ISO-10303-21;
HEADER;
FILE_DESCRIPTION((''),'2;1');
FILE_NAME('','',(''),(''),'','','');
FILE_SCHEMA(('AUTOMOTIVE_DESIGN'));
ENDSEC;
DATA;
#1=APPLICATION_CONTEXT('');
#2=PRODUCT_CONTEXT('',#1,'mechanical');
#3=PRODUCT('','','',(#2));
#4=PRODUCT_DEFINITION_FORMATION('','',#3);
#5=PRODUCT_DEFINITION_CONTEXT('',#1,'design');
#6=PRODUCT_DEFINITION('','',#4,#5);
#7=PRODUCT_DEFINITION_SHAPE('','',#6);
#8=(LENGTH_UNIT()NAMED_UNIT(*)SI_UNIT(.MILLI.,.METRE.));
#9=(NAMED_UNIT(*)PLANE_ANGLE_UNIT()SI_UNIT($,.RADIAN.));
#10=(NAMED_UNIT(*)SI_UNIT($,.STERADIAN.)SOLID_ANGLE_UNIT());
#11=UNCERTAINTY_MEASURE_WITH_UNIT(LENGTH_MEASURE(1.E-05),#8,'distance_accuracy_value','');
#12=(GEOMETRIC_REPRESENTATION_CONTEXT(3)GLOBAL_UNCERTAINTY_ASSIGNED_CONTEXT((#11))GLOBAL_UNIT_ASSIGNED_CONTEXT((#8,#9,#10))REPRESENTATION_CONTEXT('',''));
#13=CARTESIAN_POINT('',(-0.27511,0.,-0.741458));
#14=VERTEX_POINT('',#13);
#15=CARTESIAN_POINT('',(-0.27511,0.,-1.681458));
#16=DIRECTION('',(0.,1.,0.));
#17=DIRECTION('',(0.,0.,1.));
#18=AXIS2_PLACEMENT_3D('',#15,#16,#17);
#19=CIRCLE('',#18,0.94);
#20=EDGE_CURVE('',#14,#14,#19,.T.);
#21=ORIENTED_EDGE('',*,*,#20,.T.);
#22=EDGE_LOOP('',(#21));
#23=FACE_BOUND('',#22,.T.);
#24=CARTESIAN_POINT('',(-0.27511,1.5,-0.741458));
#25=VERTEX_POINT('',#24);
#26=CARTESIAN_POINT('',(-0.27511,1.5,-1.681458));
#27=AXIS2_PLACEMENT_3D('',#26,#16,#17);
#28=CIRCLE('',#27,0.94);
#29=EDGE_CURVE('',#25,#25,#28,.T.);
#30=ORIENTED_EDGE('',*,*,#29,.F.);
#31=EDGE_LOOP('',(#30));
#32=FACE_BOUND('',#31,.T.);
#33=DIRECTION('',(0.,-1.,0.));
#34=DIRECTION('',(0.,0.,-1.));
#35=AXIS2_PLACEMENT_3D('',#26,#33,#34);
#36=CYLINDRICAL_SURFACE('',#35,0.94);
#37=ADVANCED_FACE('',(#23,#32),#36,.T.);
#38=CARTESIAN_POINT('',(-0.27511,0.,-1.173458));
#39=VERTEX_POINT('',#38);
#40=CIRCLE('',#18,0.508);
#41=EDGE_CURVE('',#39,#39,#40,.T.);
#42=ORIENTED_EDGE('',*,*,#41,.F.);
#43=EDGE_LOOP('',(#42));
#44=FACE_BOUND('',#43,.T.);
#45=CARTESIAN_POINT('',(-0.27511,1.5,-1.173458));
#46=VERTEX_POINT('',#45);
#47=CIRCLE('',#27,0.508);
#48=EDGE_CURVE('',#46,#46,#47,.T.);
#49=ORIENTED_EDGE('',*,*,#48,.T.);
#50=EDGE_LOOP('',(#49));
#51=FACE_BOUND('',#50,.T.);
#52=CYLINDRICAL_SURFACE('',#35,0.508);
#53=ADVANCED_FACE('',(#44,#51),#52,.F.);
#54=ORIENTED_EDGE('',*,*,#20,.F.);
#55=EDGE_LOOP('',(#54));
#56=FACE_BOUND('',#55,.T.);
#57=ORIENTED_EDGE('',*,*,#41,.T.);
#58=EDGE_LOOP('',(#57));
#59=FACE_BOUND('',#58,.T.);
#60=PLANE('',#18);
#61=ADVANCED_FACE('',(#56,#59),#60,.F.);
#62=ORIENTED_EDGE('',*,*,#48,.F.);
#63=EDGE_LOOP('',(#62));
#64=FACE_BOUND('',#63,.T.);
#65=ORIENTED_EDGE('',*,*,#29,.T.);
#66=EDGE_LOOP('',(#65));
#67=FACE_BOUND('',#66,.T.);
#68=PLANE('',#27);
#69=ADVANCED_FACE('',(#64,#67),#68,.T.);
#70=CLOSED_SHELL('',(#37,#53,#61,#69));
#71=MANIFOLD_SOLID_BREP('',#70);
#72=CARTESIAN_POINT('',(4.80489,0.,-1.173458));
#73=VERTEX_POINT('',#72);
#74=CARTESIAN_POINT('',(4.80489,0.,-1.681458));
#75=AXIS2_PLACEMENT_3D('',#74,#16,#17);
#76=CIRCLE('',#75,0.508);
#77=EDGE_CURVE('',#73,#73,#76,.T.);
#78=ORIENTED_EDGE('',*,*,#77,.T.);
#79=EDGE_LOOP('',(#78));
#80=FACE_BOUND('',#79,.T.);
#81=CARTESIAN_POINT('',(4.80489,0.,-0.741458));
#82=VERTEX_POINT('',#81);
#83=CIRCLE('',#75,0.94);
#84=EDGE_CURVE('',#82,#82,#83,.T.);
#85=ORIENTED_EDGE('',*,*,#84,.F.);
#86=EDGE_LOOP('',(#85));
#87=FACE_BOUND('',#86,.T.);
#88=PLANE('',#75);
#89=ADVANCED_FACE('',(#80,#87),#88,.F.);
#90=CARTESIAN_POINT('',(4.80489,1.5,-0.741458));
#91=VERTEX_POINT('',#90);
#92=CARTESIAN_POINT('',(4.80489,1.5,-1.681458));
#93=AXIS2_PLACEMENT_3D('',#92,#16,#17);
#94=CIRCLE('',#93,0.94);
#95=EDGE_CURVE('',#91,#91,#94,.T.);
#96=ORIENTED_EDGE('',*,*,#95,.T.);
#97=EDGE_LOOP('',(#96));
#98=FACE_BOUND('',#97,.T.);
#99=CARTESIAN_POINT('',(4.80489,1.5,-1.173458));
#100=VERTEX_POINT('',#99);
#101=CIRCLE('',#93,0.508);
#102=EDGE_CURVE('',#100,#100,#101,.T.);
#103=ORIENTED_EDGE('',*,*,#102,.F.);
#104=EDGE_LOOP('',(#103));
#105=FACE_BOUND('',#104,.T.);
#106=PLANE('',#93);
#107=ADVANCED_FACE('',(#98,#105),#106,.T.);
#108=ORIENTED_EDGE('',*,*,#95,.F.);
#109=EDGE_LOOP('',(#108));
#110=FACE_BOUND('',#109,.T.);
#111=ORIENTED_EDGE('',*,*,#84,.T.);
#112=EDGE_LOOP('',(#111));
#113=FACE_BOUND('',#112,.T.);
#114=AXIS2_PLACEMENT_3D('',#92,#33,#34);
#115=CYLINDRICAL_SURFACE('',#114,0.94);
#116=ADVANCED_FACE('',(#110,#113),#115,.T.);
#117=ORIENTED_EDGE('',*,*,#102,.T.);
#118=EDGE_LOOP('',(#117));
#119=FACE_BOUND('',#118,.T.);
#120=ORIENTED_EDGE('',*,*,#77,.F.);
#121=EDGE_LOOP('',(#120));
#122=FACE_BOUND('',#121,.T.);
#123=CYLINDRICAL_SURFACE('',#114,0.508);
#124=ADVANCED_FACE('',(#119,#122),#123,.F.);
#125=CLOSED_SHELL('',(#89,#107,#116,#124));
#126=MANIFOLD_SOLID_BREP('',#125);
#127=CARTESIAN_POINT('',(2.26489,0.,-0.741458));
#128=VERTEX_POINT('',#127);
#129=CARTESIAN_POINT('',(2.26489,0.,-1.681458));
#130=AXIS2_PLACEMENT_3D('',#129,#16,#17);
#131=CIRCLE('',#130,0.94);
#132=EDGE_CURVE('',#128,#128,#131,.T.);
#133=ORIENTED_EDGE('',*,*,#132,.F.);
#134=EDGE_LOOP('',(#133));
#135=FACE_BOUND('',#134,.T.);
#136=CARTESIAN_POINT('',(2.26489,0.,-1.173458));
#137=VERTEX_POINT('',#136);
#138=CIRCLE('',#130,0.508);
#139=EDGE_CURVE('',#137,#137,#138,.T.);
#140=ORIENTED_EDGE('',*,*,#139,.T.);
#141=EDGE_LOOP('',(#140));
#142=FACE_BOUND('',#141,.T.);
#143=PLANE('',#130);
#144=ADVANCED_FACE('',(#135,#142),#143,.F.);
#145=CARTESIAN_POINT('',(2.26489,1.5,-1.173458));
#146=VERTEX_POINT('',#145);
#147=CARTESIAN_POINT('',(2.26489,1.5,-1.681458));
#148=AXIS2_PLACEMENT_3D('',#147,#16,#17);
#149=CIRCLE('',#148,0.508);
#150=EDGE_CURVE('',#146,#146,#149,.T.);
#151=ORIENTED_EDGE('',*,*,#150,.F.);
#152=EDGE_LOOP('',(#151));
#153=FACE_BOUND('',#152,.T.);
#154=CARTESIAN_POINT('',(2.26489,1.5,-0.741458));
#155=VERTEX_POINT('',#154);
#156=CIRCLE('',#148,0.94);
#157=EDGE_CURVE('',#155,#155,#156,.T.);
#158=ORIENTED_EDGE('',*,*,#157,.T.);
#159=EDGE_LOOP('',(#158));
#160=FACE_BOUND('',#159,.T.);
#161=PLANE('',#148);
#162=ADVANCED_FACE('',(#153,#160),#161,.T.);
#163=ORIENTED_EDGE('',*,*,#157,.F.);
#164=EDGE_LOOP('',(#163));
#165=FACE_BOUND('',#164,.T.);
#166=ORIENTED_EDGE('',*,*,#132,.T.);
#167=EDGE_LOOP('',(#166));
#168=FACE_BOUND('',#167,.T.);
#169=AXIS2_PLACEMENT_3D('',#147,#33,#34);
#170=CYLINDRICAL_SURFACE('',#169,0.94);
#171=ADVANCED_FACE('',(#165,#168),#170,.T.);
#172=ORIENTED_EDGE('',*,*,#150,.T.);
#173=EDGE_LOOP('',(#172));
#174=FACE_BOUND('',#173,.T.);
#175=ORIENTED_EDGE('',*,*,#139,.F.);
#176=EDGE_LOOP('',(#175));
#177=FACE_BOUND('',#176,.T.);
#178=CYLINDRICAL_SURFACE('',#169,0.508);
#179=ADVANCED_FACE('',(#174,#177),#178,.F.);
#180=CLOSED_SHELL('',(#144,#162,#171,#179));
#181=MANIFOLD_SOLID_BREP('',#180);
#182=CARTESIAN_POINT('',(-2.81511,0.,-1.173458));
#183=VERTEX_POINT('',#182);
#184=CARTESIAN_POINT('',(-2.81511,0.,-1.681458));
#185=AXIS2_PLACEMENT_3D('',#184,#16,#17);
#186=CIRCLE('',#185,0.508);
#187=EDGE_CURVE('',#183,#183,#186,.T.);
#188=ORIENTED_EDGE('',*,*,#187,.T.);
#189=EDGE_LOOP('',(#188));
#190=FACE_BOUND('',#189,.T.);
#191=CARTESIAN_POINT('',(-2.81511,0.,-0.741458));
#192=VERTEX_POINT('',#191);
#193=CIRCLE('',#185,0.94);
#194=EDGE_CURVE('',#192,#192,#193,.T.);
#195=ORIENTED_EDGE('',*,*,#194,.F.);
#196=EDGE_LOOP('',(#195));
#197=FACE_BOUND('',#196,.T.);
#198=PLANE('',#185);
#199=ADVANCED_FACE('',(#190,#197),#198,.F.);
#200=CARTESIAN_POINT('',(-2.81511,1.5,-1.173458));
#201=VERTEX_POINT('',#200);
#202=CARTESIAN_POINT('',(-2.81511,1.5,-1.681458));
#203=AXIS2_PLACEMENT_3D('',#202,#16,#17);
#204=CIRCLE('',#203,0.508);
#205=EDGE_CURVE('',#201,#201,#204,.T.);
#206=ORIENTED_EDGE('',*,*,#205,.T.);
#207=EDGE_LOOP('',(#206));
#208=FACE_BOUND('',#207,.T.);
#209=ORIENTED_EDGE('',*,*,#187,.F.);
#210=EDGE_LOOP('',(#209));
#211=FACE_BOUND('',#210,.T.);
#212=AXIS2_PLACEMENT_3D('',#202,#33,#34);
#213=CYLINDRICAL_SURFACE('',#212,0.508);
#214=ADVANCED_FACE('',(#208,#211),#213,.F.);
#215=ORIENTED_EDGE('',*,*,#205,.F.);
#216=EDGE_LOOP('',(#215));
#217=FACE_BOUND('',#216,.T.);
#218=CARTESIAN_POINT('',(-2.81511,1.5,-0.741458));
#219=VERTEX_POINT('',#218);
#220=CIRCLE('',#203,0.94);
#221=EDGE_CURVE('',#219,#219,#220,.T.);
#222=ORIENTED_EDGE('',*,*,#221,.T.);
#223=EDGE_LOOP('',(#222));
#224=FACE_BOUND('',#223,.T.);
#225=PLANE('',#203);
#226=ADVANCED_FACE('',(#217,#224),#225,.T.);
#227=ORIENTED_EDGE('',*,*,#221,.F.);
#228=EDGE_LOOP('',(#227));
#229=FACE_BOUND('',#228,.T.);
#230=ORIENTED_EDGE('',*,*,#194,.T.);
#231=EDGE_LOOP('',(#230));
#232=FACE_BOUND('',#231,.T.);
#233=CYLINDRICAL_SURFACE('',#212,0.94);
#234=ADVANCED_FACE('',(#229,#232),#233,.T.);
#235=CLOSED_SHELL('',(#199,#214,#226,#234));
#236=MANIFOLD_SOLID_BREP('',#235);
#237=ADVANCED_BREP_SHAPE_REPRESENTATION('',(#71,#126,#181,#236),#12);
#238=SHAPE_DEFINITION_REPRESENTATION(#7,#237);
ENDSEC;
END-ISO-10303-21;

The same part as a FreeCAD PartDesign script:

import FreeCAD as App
import Part
import Sketcher

V = App.Vector

doc = App.newDocument("Part")
params = doc.addObject("Spreadsheet::Sheet", "Params")
for row, (alias, value) in enumerate([
    ("sketch1_diameter", "1.88 mm"),
    ("pad1_length", "1.5 mm"),
    ("sketch2_diameter", "1.88 mm"),
    ("pad2_length", "1.5 mm"),
    ("sketch3_diameter", "1.88 mm"),
    ("pad3_length", "1.5 mm"),
    ("sketch4_diameter", "1.88 mm"),
    ("pad4_length", "1.5 mm"),
], start=1):
    params.set(f"A{row}", alias)
    params.set(f"B{row}", "=" + value)
    params.setAlias(f"B{row}", alias)

body = doc.addObject("PartDesign::Body", "Body")

# Sketch on XZ plane
sketch1 = body.newObject("Sketcher::SketchObject", "Sketch")
sketch1.AttachmentSupport = (doc.getObject("XZ_Plane"), [""])
sketch1.MapMode = "FlatFace"
sketch1.addGeometry([
    Part.Circle(V(-2.8, -1.7, 0), V(0, 0, 1), 0.9),
    Part.Circle(V(-2.8, -1.7, 0), V(0, 0, 1), 0.5),
], False)
sketch1.addConstraint([
    Sketcher.Constraint("Coincident", 1, 3, 0, 3),
    Sketcher.Constraint("Diameter", 0, 1.88),
    Sketcher.Constraint("Diameter", 1, 1.016),
    Sketcher.Constraint("DistanceX", 0, 3, -1, 1, 2.81511),
    Sketcher.Constraint("DistanceY", 0, 3, -1, 1, 1.681458),
])
sketch1.setExpression("Constraints[1]", "Params.sketch1_diameter")
pad1 = body.newObject("PartDesign::Pad", "Pad")
pad1.Profile = sketch1
pad1.setExpression("Length", "Params.pad1_length")
pad1.Reversed = True
body2 = doc.addObject("PartDesign::Body", "Body001")

# Sketch on XZ plane
sketch2 = body2.newObject("Sketcher::SketchObject", "Sketch001")
sketch2.AttachmentSupport = (doc.getObject("XZ_Plane001"), [""])
sketch2.MapMode = "FlatFace"
sketch2.addGeometry([
    Part.Circle(V(-0.3, -1.7, 0), V(0, 0, 1), 0.9),
    Part.Circle(V(-0.3, -1.7, 0), V(0, 0, 1), 0.5),
], False)
sketch2.addConstraint([
    Sketcher.Constraint("Coincident", 1, 3, 0, 3),
    Sketcher.Constraint("Diameter", 0, 1.88),
    Sketcher.Constraint("Diameter", 1, 1.016),
    Sketcher.Constraint("DistanceX", 0, 3, -1, 1, 0.27511),
    Sketcher.Constraint("DistanceY", 0, 3, -1, 1, 1.681458),
])
sketch2.setExpression("Constraints[1]", "Params.sketch2_diameter")
pad2 = body2.newObject("PartDesign::Pad", "Pad001")
pad2.Profile = sketch2
pad2.setExpression("Length", "Params.pad2_length")
pad2.Reversed = True
body3 = doc.addObject("PartDesign::Body", "Body002")

# Sketch on XZ plane
sketch3 = body3.newObject("Sketcher::SketchObject", "Sketch002")
sketch3.AttachmentSupport = (doc.getObject("XZ_Plane002"), [""])
sketch3.MapMode = "FlatFace"
sketch3.addGeometry([
    Part.Circle(V(2.3, -1.7, 0), V(0, 0, 1), 0.9),
    Part.Circle(V(2.3, -1.7, 0), V(0, 0, 1), 0.5),
], False)
sketch3.addConstraint([
    Sketcher.Constraint("Coincident", 1, 3, 0, 3),
    Sketcher.Constraint("Diameter", 0, 1.88),
    Sketcher.Constraint("Diameter", 1, 1.016),
    Sketcher.Constraint("DistanceX", -1, 1, 0, 3, 2.26489),
    Sketcher.Constraint("DistanceY", 0, 3, -1, 1, 1.681458),
])
sketch3.setExpression("Constraints[1]", "Params.sketch3_diameter")
pad3 = body3.newObject("PartDesign::Pad", "Pad002")
pad3.Profile = sketch3
pad3.setExpression("Length", "Params.pad3_length")
pad3.Reversed = True
body4 = doc.addObject("PartDesign::Body", "Body003")

# Sketch on XZ plane
sketch4 = body4.newObject("Sketcher::SketchObject", "Sketch003")
sketch4.AttachmentSupport = (doc.getObject("XZ_Plane003"), [""])
sketch4.MapMode = "FlatFace"
sketch4.addGeometry([
    Part.Circle(V(4.8, -1.7, 0), V(0, 0, 1), 0.9),
    Part.Circle(V(4.8, -1.7, 0), V(0, 0, 1), 0.5),
], False)
sketch4.addConstraint([
    Sketcher.Constraint("Coincident", 1, 3, 0, 3),
    Sketcher.Constraint("Diameter", 0, 1.88),
    Sketcher.Constraint("Diameter", 1, 1.016),
    Sketcher.Constraint("DistanceX", -1, 1, 0, 3, 4.80489),
    Sketcher.Constraint("DistanceY", 0, 3, -1, 1, 1.681458),
])
sketch4.setExpression("Constraints[1]", "Params.sketch4_diameter")
pad4 = body4.newObject("PartDesign::Pad", "Pad003")
pad4.Profile = sketch4
pad4.setExpression("Length", "Params.pad4_length")
pad4.Reversed = True

doc.recompute()
